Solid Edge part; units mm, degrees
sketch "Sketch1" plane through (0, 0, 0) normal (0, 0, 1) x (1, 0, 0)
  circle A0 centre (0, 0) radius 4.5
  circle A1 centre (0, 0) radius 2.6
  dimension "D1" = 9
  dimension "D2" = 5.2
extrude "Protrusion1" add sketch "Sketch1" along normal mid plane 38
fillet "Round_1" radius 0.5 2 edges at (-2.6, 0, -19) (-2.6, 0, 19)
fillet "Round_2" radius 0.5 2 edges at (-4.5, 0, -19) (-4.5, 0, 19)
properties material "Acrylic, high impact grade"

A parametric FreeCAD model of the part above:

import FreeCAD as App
import Part
import Sketcher

V = App.Vector
Q = App.Units.Quantity


def edges_at(feature, points):
    """Names of the edges that pass closest to the given points."""
    edges = feature.Shape.Edges
    near = lambda p: min(range(len(edges)), key=lambda i: edges[i].distToShape(Part.Vertex(*p))[0])
    return sorted({f"Edge{near(p) + 1}" for p in points})

doc = App.newDocument("Part")
body = doc.addObject("PartDesign::Body", "Body")

# Sketch on XY plane
sketch1 = doc.addObject("Sketcher::SketchObject", "Sketch")
body.addObject(sketch1)
sketch1.AttachmentSupport = (doc.XY_Plane, [""])
sketch1.MapMode = "FlatFace"
sketch1.addGeometry([
    Part.Circle(V(0, 0, 0), V(0, 0, 1), 4.5),
    Part.Circle(V(0, 0, 0), V(0, 0, 1), 2.6),
], False)
sketch1.addConstraint([
    Sketcher.Constraint("Coincident", 0, 3, -1, 1),
    Sketcher.Constraint("Coincident", 1, 3, -1, 1),
    Sketcher.Constraint("Diameter", 0, Q("9 mm")),
    Sketcher.Constraint("Diameter", 1, Q("5.2 mm")),
])
pad1 = doc.addObject("PartDesign::Pad", "Pad")
body.addObject(pad1)
pad1.Profile = sketch1
pad1.Length = 38
pad1.Midplane = True
doc.recompute()

fillet = doc.addObject("PartDesign::Fillet", "Fillet")
body.addObject(fillet)
fillet.Base = (pad1, edges_at(pad1, [(-2.6, 0, -19), (-2.6, 0, 19)]))
fillet.Radius = 0.5
doc.recompute()

fillet2 = doc.addObject("PartDesign::Fillet", "Fillet001")
body.addObject(fillet2)
fillet2.Base = (fillet, edges_at(fillet, [(-4.5, 0, -19), (-4.5, 0, 19)]))
fillet2.Radius = 0.5

doc.recompute()
